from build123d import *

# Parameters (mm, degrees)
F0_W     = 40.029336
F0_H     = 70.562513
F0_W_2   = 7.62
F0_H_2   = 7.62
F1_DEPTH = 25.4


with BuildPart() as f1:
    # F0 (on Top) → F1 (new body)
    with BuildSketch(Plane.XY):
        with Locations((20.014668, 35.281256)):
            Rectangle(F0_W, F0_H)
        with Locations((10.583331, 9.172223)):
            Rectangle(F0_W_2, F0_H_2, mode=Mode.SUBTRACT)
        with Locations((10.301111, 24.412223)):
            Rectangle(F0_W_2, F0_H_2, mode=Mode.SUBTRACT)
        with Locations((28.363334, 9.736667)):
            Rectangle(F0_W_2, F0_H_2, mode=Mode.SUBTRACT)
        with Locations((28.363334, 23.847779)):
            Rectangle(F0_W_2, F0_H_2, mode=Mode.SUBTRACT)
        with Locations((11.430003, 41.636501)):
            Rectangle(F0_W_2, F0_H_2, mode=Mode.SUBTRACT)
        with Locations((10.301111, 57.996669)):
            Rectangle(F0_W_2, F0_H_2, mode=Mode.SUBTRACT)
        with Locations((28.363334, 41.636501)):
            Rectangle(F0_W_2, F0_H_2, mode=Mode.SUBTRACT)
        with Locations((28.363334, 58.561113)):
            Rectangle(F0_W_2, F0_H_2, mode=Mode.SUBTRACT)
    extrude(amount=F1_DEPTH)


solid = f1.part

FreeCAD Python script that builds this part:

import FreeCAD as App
import Part
import Sketcher

V = App.Vector
Q = App.Units.Quantity

doc = App.newDocument("Part")
body = doc.addObject("PartDesign::Body", "Body")

sketch1 = body.newObject("Sketcher::SketchObject", "Sketch")
sketch1.AttachmentSupport = (doc.getObject("XY_Plane"), [""])
sketch1.MapMode = "FlatFace"
sketch1.addGeometry([
    Part.LineSegment(V(0, 71, 0), V(0, 0, 0)),
    Part.LineSegment(V(0, 0, 0), V(40, 0, 0)),
    Part.LineSegment(V(40, 0, 0), V(40, 71, 0)),
    Part.LineSegment(V(40, 71, 0), V(0, 71, 0)),
    Part.LineSegment(V(14, 5, 0), V(7, 5, 0)),
    Part.LineSegment(V(7, 5, 0), V(7, 13, 0)),
    Part.LineSegment(V(7, 13, 0), V(14, 13, 0)),
    Part.LineSegment(V(14, 13, 0), V(14, 5, 0)),
    Part.LineSegment(V(14, 21, 0), V(6, 21, 0)),
    Part.LineSegment(V(6, 21, 0), V(6, 28, 0)),
    Part.LineSegment(V(6, 28, 0), V(14, 28, 0)),
    Part.LineSegment(V(14, 28, 0), V(14, 21, 0)),
    Part.LineSegment(V(32, 6, 0), V(25, 6, 0)),
    Part.LineSegment(V(25, 6, 0), V(25, 14, 0)),
    Part.LineSegment(V(25, 14, 0), V(32, 14, 0)),
    Part.LineSegment(V(32, 14, 0), V(32, 6, 0)),
    Part.LineSegment(V(32, 20, 0), V(25, 20, 0)),
    Part.LineSegment(V(25, 20, 0), V(25, 28, 0)),
    Part.LineSegment(V(25, 28, 0), V(32, 28, 0)),
    Part.LineSegment(V(32, 28, 0), V(32, 20, 0)),
    Part.LineSegment(V(15, 38, 0), V(8, 38, 0)),
    Part.LineSegment(V(8, 38, 0), V(8, 45, 0)),
    Part.LineSegment(V(8, 45, 0), V(15, 45, 0)),
    Part.LineSegment(V(15, 45, 0), V(15, 38, 0)),
    Part.LineSegment(V(14, 54, 0), V(6, 54, 0)),
    Part.LineSegment(V(6, 54, 0), V(6, 62, 0)),
    Part.LineSegment(V(6, 62, 0), V(14, 62, 0)),
    Part.LineSegment(V(14, 62, 0), V(14, 54, 0)),
    Part.LineSegment(V(32, 38, 0), V(25, 38, 0)),
    Part.LineSegment(V(25, 38, 0), V(25, 45, 0)),
    Part.LineSegment(V(25, 45, 0), V(32, 45, 0)),
    Part.LineSegment(V(32, 45, 0), V(32, 38, 0)),
    Part.LineSegment(V(32, 55, 0), V(25, 55, 0)),
    Part.LineSegment(V(25, 55, 0), V(25, 62, 0)),
    Part.LineSegment(V(25, 62, 0), V(32, 62, 0)),
    Part.LineSegment(V(32, 62, 0), V(32, 55, 0)),
], False)
sketch1.addConstraint([
    Sketcher.Constraint("Coincident", 0, 2, 1, 1),
    Sketcher.Constraint("Coincident", 1, 2, 2, 1),
    Sketcher.Constraint("Coincident", 2, 2, 3, 1),
    Sketcher.Constraint("Coincident", 3, 2, 0, 1),
    Sketcher.Constraint("Coincident", 4, 2, 5, 1),
    Sketcher.Constraint("Coincident", 5, 2, 6, 1),
    Sketcher.Constraint("Coincident", 6, 2, 7, 1),
    Sketcher.Constraint("Coincident", 7, 2, 4, 1),
    Sketcher.Constraint("Coincident", 8, 2, 9, 1),
    Sketcher.Constraint("Coincident", 9, 2, 10, 1),
    Sketcher.Constraint("Coincident", 10, 2, 11, 1),
    Sketcher.Constraint("Coincident", 11, 2, 8, 1),
    Sketcher.Constraint("Coincident", 12, 2, 13, 1),
    Sketcher.Constraint("Coincident", 13, 2, 14, 1),
    Sketcher.Constraint("Coincident", 14, 2, 15, 1),
    Sketcher.Constraint("Coincident", 15, 2, 12, 1),
    Sketcher.Constraint("Coincident", 16, 2, 17, 1),
    Sketcher.Constraint("Coincident", 17, 2, 18, 1),
    Sketcher.Constraint("Coincident", 18, 2, 19, 1),
    Sketcher.Constraint("Coincident", 19, 2, 16, 1),
    Sketcher.Constraint("Coincident", 20, 2, 21, 1),
    Sketcher.Constraint("Coincident", 21, 2, 22, 1),
    Sketcher.Constraint("Coincident", 22, 2, 23, 1),
    Sketcher.Constraint("Coincident", 23, 2, 20, 1),
    Sketcher.Constraint("Coincident", 24, 2, 25, 1),
    Sketcher.Constraint("Coincident", 25, 2, 26, 1),
    Sketcher.Constraint("Coincident", 26, 2, 27, 1),
    Sketcher.Constraint("Coincident", 27, 2, 24, 1),
    Sketcher.Constraint("Coincident", 28, 2, 29, 1),
    Sketcher.Constraint("Coincident", 29, 2, 30, 1),
    Sketcher.Constraint("Coincident", 30, 2, 31, 1),
    Sketcher.Constraint("Coincident", 31, 2, 28, 1),
    Sketcher.Constraint("Coincident", 32, 2, 33, 1),
    Sketcher.Constraint("Coincident", 33, 2, 34, 1),
    Sketcher.Constraint("Coincident", 34, 2, 35, 1),
    Sketcher.Constraint("Coincident", 35, 2, 32, 1),
    Sketcher.Constraint("Vertical", 0),
    Sketcher.Constraint("Horizontal", 1),
    Sketcher.Constraint("Vertical", 2),
    Sketcher.Constraint("Horizontal", 3),
    Sketcher.Constraint("Horizontal", 4),
    Sketcher.Constraint("Vertical", 5),
    Sketcher.Constraint("Horizontal", 6),
    Sketcher.Constraint("Vertical", 7),
    Sketcher.Constraint("Horizontal", 8),
    Sketcher.Constraint("Vertical", 9),
    Sketcher.Constraint("Horizontal", 10),
    Sketcher.Constraint("Vertical", 11),
    Sketcher.Constraint("Horizontal", 12),
    Sketcher.Constraint("Vertical", 13),
    Sketcher.Constraint("Horizontal", 14),
    Sketcher.Constraint("Vertical", 15),
    Sketcher.Constraint("Horizontal", 16),
    Sketcher.Constraint("Vertical", 17),
    Sketcher.Constraint("Horizontal", 18),
    Sketcher.Constraint("Vertical", 19),
    Sketcher.Constraint("Horizontal", 20),
    Sketcher.Constraint("Vertical", 21),
    Sketcher.Constraint("Horizontal", 22),
    Sketcher.Constraint("Vertical", 23),
    Sketcher.Constraint("Horizontal", 24),
    Sketcher.Constraint("Vertical", 25),
    Sketcher.Constraint("Horizontal", 26),
    Sketcher.Constraint("Vertical", 27),
    Sketcher.Constraint("Horizontal", 28),
    Sketcher.Constraint("Vertical", 29),
    Sketcher.Constraint("Horizontal", 30),
    Sketcher.Constraint("Vertical", 31),
    Sketcher.Constraint("Horizontal", 32),
    Sketcher.Constraint("Vertical", 33),
    Sketcher.Constraint("Horizontal", 34),
    Sketcher.Constraint("Vertical", 35),
    Sketcher.Constraint("Coincident", 0, 2, -1, 1),
    Sketcher.Constraint("Horizontal", 23, 2, 28, 2),
    Sketcher.Constraint("Horizontal", 22, 2, 29, 2),
    Sketcher.Constraint("Vertical", 13, 2, 16, 2),
    Sketcher.Constraint("Vertical", 15, 2, 18, 2),
    Sketcher.Constraint("Vertical", 9, 2, 24, 2),
    Sketcher.Constraint("Vertical", 11, 2, 26, 2),
    Sketcher.Constraint("Vertical", 17, 2, 28, 2),
    Sketcher.Constraint("Vertical", 19, 2, 30, 2),
    Sketcher.Constraint("Vertical", 29, 2, 32, 2),
    Sketcher.Constraint("Vertical", 31, 2, 34, 2),
    Sketcher.Constraint("Equal", 6, 8),
    Sketcher.Constraint("Equal", 10, 12),
    Sketcher.Constraint("Equal", 18, 20),
    Sketcher.Constraint("Equal", 34, 5),
    Sketcher.Constraint("Equal", 7, 9),
    Sketcher.Constraint("Equal", 11, 13),
    Sketcher.Constraint("Equal", 15, 17),
    Sketcher.Constraint("Equal", 19, 21),
    Sketcher.Constraint("Equal", 23, 25),
    Sketcher.Constraint("Equal", 31, 33),
    Sketcher.Constraint("DistanceX", 4, 2, 4, 1, Q("0.3 in")),
    Sketcher.Constraint("DistanceX", -1, 1, 20, 2, Q("0.3000001 in")),
    Sketcher.Constraint("DistanceY", 5, 2, 8, 2, Q("0.3 in")),
    Sketcher.Constraint("DistanceX", 7, 2, 12, 2, Q("0.4000001 in")),
    Sketcher.Constraint("DistanceY", -1, 1, 20, 2, 37.826501),
    Sketcher.Constraint("DistanceY", 33, 2, 2, 2, 8.191399),
    Sketcher.Constraint("DistanceX", 1, 1, 1, 2, 40.029336),
    Sketcher.Constraint("DistanceY", 0, 2, 0, 1, 70.562513),
    Sketcher.Constraint("DistanceX", -1, 1, 4, 2, 6.773331),
    Sketcher.Constraint("DistanceX", -1, 1, 8, 2, 6.491111),
    Sketcher.Constraint("DistanceY", -1, 1, 16, 2, 20.037779),
    Sketcher.Constraint("DistanceY", -1, 1, 24, 2, 54.186669),
    Sketcher.Constraint("DistanceY", 4, 2, 3, 2, 65.200289),
    Sketcher.Constraint("DistanceY", -1, 1, 12, 2, 5.926667),
])
pad1 = body.newObject("PartDesign::Pad", "Pad")
pad1.Profile = sketch1
pad1.Length = Q("1 in")

doc.recompute()
